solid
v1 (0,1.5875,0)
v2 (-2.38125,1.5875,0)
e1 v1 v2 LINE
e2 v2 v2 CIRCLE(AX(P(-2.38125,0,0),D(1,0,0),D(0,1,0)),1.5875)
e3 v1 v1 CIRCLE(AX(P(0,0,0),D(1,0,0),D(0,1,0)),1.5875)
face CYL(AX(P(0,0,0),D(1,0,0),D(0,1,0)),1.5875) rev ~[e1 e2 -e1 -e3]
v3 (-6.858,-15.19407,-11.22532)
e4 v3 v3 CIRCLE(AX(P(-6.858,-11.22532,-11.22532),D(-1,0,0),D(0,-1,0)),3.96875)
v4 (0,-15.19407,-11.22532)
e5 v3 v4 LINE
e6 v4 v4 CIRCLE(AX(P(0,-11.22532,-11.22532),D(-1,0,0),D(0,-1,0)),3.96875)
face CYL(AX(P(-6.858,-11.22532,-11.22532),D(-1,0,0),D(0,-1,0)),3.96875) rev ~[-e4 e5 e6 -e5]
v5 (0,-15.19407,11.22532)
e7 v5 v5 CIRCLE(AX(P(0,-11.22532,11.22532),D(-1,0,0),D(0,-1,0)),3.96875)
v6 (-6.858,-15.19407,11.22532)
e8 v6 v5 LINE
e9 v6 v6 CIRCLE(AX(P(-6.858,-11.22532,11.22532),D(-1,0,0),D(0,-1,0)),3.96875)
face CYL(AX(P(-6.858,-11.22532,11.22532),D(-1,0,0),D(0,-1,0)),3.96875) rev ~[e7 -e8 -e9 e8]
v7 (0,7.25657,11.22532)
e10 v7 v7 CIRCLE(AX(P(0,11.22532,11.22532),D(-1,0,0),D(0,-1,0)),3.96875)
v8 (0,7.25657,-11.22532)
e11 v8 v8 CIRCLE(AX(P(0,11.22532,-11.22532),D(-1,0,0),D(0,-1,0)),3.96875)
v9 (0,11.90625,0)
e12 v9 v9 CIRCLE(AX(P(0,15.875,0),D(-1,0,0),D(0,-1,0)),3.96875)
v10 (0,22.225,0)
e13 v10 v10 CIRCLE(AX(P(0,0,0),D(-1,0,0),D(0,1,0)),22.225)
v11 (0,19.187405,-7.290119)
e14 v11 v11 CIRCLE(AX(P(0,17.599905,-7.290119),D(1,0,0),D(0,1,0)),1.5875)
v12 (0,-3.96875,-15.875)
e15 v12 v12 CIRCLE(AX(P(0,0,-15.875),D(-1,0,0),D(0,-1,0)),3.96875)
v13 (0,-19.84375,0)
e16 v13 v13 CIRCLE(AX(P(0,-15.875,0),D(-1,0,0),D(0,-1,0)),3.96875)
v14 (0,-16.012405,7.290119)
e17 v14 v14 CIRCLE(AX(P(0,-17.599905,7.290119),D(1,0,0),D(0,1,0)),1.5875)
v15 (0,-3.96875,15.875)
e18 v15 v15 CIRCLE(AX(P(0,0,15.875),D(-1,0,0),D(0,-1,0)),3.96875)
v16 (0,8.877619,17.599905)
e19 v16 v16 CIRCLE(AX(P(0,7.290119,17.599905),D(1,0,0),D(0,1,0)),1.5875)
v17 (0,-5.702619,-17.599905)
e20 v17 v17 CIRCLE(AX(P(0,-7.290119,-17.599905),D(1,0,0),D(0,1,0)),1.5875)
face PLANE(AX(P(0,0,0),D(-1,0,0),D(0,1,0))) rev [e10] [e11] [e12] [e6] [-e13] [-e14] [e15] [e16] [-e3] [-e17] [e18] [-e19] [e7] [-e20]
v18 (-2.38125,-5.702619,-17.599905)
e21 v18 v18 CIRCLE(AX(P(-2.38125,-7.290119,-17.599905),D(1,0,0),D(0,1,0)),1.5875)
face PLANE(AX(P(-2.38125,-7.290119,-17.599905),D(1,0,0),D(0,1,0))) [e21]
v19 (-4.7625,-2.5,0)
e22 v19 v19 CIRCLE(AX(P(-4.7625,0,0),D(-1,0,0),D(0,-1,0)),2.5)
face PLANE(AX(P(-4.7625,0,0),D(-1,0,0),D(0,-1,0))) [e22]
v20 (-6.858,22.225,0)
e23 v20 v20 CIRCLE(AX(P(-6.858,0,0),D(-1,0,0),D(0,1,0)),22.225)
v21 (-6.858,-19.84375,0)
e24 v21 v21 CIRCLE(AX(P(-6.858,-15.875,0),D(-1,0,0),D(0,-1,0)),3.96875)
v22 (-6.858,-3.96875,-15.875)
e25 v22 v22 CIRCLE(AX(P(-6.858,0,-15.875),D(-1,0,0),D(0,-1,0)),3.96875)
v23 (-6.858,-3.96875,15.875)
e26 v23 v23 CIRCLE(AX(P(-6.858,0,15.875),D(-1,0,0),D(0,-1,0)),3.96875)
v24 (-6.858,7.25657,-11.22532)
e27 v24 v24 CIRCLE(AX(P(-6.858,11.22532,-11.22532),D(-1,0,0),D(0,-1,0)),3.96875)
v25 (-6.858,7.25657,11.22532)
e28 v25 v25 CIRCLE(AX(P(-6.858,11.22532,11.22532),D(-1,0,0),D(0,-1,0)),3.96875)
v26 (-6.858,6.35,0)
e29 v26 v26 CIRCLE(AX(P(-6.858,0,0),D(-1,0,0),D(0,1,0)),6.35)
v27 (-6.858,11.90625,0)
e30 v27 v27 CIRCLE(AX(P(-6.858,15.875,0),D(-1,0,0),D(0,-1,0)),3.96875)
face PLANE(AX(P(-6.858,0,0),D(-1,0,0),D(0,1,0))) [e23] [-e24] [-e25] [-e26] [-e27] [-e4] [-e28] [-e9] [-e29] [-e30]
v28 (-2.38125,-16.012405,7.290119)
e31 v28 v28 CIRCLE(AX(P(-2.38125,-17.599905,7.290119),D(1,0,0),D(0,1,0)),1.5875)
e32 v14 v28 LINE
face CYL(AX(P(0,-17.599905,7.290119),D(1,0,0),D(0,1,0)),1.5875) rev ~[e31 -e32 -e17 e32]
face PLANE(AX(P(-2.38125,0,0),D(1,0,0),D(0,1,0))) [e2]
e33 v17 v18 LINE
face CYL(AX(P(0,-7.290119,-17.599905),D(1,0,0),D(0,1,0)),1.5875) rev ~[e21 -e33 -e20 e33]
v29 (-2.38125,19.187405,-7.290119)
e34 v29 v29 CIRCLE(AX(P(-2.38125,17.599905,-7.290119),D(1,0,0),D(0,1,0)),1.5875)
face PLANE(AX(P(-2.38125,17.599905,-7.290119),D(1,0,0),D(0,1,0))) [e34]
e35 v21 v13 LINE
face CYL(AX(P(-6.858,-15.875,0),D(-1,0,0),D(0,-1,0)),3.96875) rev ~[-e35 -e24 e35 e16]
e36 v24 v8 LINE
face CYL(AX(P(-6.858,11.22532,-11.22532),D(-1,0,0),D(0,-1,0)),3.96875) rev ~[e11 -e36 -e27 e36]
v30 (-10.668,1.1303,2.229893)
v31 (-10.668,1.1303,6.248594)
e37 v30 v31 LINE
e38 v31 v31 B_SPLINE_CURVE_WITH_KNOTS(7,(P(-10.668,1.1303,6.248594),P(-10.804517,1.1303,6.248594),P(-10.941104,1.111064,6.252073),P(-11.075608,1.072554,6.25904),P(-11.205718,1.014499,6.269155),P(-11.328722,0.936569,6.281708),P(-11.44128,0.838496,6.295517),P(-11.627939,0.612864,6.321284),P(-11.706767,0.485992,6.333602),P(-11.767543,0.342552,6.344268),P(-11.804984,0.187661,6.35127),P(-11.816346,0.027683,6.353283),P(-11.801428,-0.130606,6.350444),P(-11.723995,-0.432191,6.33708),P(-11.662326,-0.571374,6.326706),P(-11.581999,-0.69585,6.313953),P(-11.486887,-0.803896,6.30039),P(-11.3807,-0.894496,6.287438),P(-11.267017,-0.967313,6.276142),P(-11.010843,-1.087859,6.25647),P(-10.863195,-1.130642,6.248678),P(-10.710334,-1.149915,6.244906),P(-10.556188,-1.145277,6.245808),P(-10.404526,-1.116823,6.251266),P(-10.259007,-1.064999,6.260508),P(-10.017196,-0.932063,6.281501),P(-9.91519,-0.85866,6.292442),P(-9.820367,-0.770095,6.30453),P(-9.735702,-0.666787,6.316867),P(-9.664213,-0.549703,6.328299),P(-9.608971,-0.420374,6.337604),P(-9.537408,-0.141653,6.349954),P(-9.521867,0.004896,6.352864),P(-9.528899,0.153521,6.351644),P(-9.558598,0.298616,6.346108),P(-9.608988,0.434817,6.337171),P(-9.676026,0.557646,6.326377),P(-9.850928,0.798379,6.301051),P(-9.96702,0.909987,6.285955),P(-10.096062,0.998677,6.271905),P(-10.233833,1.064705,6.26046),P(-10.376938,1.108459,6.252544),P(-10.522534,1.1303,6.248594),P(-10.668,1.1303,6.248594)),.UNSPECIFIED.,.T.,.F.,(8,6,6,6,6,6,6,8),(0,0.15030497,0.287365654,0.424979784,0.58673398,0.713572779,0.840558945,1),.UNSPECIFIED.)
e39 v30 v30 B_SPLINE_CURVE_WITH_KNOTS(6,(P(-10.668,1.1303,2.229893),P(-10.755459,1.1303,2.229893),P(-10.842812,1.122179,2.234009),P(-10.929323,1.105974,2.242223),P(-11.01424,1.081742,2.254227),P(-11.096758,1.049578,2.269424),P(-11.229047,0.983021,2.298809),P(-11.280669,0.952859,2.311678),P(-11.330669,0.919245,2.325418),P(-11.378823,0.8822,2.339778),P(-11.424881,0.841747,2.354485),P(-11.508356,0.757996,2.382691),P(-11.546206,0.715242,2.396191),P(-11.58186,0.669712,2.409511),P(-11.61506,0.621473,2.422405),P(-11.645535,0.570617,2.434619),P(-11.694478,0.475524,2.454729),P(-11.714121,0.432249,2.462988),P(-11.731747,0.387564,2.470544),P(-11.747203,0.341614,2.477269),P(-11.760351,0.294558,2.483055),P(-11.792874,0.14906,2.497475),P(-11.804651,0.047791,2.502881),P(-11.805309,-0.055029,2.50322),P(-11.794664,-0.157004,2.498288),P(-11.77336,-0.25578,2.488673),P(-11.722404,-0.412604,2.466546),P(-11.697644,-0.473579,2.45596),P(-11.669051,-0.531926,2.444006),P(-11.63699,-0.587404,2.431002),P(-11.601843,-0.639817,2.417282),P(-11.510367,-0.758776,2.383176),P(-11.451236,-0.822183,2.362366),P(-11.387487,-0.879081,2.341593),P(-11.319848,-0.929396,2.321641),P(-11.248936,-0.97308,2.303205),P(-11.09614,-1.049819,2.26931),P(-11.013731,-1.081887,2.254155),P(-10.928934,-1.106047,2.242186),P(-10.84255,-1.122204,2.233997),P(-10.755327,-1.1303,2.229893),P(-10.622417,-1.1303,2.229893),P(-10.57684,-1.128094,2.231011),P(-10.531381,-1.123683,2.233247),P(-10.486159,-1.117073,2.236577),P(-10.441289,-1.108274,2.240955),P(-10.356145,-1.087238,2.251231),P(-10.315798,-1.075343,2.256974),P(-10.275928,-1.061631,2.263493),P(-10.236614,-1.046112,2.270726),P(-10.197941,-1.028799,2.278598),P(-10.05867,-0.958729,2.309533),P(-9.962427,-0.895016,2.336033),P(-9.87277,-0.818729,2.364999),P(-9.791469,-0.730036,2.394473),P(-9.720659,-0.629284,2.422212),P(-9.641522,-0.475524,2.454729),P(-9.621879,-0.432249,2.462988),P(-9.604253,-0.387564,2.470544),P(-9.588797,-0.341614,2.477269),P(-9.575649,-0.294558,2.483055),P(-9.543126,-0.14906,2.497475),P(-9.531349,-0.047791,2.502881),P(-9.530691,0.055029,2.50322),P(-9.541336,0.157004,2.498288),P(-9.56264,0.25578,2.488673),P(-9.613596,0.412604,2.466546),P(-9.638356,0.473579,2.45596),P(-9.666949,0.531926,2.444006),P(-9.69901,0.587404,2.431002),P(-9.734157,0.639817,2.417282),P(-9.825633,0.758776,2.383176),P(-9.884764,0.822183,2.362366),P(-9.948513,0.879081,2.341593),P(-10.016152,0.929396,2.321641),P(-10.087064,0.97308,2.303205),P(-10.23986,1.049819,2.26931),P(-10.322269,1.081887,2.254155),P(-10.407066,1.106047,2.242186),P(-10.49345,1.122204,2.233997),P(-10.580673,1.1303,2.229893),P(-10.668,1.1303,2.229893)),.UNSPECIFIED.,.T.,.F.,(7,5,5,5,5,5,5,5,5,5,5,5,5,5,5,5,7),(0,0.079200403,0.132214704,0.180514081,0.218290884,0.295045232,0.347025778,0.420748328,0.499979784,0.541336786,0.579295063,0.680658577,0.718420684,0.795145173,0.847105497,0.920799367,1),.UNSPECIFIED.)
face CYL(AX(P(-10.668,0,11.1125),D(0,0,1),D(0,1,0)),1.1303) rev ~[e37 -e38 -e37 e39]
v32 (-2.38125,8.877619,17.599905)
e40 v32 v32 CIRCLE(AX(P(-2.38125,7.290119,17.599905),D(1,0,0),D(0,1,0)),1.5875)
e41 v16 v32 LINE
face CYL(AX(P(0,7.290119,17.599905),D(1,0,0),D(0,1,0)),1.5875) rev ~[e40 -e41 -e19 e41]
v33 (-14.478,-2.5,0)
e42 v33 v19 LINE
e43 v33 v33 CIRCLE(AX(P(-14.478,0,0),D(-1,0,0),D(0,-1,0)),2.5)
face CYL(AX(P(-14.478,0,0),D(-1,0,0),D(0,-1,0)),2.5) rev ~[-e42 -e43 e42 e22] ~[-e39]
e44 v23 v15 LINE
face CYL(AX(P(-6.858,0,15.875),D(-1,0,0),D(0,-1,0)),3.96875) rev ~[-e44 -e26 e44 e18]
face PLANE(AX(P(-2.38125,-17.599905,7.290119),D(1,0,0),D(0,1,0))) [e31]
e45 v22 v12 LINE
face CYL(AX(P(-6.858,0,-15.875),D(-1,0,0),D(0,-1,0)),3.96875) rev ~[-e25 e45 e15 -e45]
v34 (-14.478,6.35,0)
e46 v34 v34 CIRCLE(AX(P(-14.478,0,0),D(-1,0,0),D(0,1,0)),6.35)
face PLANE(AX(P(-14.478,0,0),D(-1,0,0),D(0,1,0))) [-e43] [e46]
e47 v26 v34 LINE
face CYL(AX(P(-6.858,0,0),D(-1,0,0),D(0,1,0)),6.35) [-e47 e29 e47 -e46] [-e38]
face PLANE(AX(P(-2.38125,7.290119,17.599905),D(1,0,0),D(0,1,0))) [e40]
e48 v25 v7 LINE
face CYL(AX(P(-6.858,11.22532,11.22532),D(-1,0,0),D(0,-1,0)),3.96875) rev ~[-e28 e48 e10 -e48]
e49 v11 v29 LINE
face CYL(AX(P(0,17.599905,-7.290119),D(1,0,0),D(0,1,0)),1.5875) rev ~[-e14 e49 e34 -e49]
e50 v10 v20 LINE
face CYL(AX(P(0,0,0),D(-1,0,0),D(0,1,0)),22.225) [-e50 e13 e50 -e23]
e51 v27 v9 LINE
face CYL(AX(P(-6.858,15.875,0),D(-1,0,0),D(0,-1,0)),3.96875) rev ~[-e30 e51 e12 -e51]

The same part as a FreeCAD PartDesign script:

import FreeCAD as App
import Part
import Sketcher
Q = App.Units.Quantity


def add_polygon(sketch, points):
    """Adds a closed chain of lines whose ends are joined by coincident constraints."""
    first, n = sketch.GeometryCount, len(points)
    for a, b in zip(points, points[1:] + points[:1]):
        sketch.addGeometry(Part.LineSegment(App.Vector(*a, 0), App.Vector(*b, 0)), False)
    for i in range(n):
        sketch.addConstraint(Sketcher.Constraint("Coincident", first + i, 2, first + (i + 1) % n, 1))

doc = App.newDocument("Part")
body = doc.addObject("PartDesign::Body", "Body")

# Sketch on XY plane
sketch1 = body.newObject("Sketcher::SketchObject", "Sketch")
sketch1.AttachmentSupport = (doc.getObject("XY_Plane"), [""])
sketch1.MapMode = "FlatFace"
add_polygon(sketch1, [(0, 0), (0, 22), (-7, 22), (-7, 6), (-14, 6), (-14, 0)])  # lines 0-5
sketch1.addConstraint(Sketcher.Constraint("Vertical", 0))
sketch1.addConstraint(Sketcher.Constraint("Horizontal", 1))
sketch1.addConstraint(Sketcher.Constraint("Vertical", 2))
sketch1.addConstraint(Sketcher.Constraint("Horizontal", 3))
sketch1.addConstraint(Sketcher.Constraint("Vertical", 4))
sketch1.addConstraint(Sketcher.Constraint("Horizontal", 5))
sketch1.addConstraint(Sketcher.Constraint("Coincident", 5, 2, -1, 1))
sketch1.addConstraint(Sketcher.Constraint("DistanceX", 3, 2, 3, 1, Q("0.3 in")))
sketch1.addConstraint(Sketcher.Constraint("DistanceX", 1, 2, 1, 1, Q("0.27 in")))
sketch1.addConstraint(Sketcher.Constraint("DistanceY", 4, 2, 4, 1, Q("0.25 in")))
sketch1.addConstraint(Sketcher.Constraint("DistanceY", 0, 1, 0, 2, Q("0.875 in")))
revolution = body.newObject("PartDesign::Revolution", "Revolution")
revolution.Profile = sketch1
revolution.ReferenceAxis = (sketch1, ["H_Axis"])
revolution.Angle = 360

# Sketch on YZ plane
sketch2 = body.newObject("Sketcher::SketchObject", "Sketch001")
sketch2.AttachmentSupport = (doc.getObject("YZ_Plane"), [""])
sketch2.MapMode = "FlatFace"
sketch2.AttachmentOffset = App.Placement(App.Vector(0, 0, -0.27 * 25.4), App.Rotation())
sketch2.addGeometry(Part.Circle(App.Vector(15.9, 0, 0), App.Vector(0, 0, 1), 4), False)
sketch2.addGeometry(Part.Circle(App.Vector(11.2, 11.2, 0), App.Vector(0, 0, 1), 4), False)
sketch2.addGeometry(Part.Circle(App.Vector(0, 15.9, 0), App.Vector(0, 0, 1), 4), False)
sketch2.addGeometry(Part.Circle(App.Vector(-11.2, 11.2, 0), App.Vector(0, 0, 1), 4), False)
sketch2.addGeometry(Part.Circle(App.Vector(-15.9, 0, 0), App.Vector(0, 0, 1), 4), False)
sketch2.addGeometry(Part.Circle(App.Vector(-11.2, -11.2, 0), App.Vector(0, 0, 1), 4), False)
sketch2.addGeometry(Part.Circle(App.Vector(0, -15.9, 0), App.Vector(0, 0, 1), 4), False)
sketch2.addGeometry(Part.Circle(App.Vector(11.2, -11.2, 0), App.Vector(0, 0, 1), 4), False)
sketch2.addConstraint(Sketcher.Constraint("Equal", 0, 1))
sketch2.addConstraint(Sketcher.Constraint("Equal", 1, 2))
sketch2.addConstraint(Sketcher.Constraint("Equal", 2, 3))
sketch2.addConstraint(Sketcher.Constraint("Equal", 3, 4))
sketch2.addConstraint(Sketcher.Constraint("Equal", 4, 5))
sketch2.addConstraint(Sketcher.Constraint("Equal", 5, 6))
sketch2.addConstraint(Sketcher.Constraint("Equal", 6, 7))
sketch2.addConstraint(Sketcher.Constraint("Symmetric", 0, 3, 4, 3, -1, 1))
sketch2.addConstraint(Sketcher.Constraint("Symmetric", 1, 3, 5, 3, -1, 1))
sketch2.addConstraint(Sketcher.Constraint("Symmetric", 2, 3, 6, 3, -1, 1))
sketch2.addConstraint(Sketcher.Constraint("Symmetric", 3, 3, 7, 3, -1, 1))
sketch2.addConstraint(Sketcher.Constraint("Symmetric", 1, 3, 3, 3, -2))
sketch2.addConstraint(Sketcher.Constraint("PointOnObject", 0, 3, -1))
sketch2.addConstraint(Sketcher.Constraint("PointOnObject", 2, 3, -2))
sketch2.addConstraint(Sketcher.Constraint("Diameter", 0, Q("0.3125 in")))
sketch2.addConstraint(Sketcher.Constraint("DistanceX", 4, 3, 0, 3, Q("1.25 in")))
sketch2.addConstraint(Sketcher.Constraint("DistanceY", -1, 1, 2, 3, Q("0.625 in")))
sketch2.addConstraint(Sketcher.Constraint("DistanceX", -1, 1, 1, 3, 11.22532))
sketch2.addConstraint(Sketcher.Constraint("DistanceY", -1, 1, 1, 3, 11.22532))
pocket1 = body.newObject("PartDesign::Pocket", "Pocket")
pocket1.Profile = sketch2
pocket1.Type = "ThroughAll"
pocket1.Reversed = True

# Sketch on YZ plane
sketch3 = body.newObject("Sketcher::SketchObject", "Sketch002")
sketch3.AttachmentSupport = (doc.getObject("YZ_Plane"), [""])
sketch3.MapMode = "FlatFace"
sketch3.AttachmentOffset = App.Placement(App.Vector(0, 0, -0.57 * 25.4), App.Rotation())
sketch3.addGeometry(Part.Circle(App.Vector(0, 0, 0), App.Vector(0, 0, 1), 2.5), False)
sketch3.addConstraint(Sketcher.Constraint("Coincident", 0, 3, -1, 1))
sketch3.addConstraint(Sketcher.Constraint("Diameter", 0, 5.0))
pocket2 = body.newObject("PartDesign::Pocket", "Pocket001")
pocket2.Profile = sketch3
pocket2.Length = Q("0.3825 in")
pocket2.Reversed = True

# Sketch on YZ plane
sketch4 = body.newObject("Sketcher::SketchObject", "Sketch003")
sketch4.AttachmentSupport = (doc.getObject("YZ_Plane"), [""])
sketch4.MapMode = "FlatFace"
sketch4.addGeometry(Part.Circle(App.Vector(0, 0, 0), App.Vector(0, 0, 1), 1.6), False)
sketch4.addGeometry(Part.Circle(App.Vector(7.3, 17.6, 0), App.Vector(0, 0, 1), 1.6), False)
sketch4.addGeometry(Part.Circle(App.Vector(17.6, -7.3, 0), App.Vector(0, 0, 1), 1.6), False)
sketch4.addGeometry(Part.Circle(App.Vector(-7.3, -17.6, 0), App.Vector(0, 0, 1), 1.6), False)
sketch4.addGeometry(Part.Circle(App.Vector(-17.6, 7.3, 0), App.Vector(0, 0, 1), 1.6), False)
sketch4.addConstraint(Sketcher.Constraint("Coincident", 0, 3, -1, 1))
sketch4.addConstraint(Sketcher.Constraint("Equal", 0, 1))
sketch4.addConstraint(Sketcher.Constraint("Equal", 1, 2))
sketch4.addConstraint(Sketcher.Constraint("Equal", 2, 3))
sketch4.addConstraint(Sketcher.Constraint("Equal", 3, 4))
sketch4.addConstraint(Sketcher.Constraint("Symmetric", 1, 3, 3, 3, -1, 1))
sketch4.addConstraint(Sketcher.Constraint("Symmetric", 2, 3, 4, 3, -1, 1))
sketch4.addConstraint(Sketcher.Constraint("Diameter", 0, Q("0.125 in")))
sketch4.addConstraint(Sketcher.Constraint("DistanceX", -1, 1, 1, 3, 7.290119))
sketch4.addConstraint(Sketcher.Constraint("DistanceY", 2, 3, -1, 1, 7.290119))
sketch4.addConstraint(Sketcher.Constraint("DistanceY", 3, 3, 1, 3, 35.19981))
sketch4.addConstraint(Sketcher.Constraint("DistanceX", 4, 3, 2, 3, 35.19981))
pocket3 = body.newObject("PartDesign::Pocket", "Pocket002")
pocket3.Profile = sketch4
pocket3.Length = Q("0.09375 in")

# Sketch on YZ plane
sketch5 = body.newObject("Sketcher::SketchObject", "Sketch004")
sketch5.AttachmentSupport = (doc.getObject("YZ_Plane"), [""])
sketch5.MapMode = "FlatFace"
sketch5.AttachmentOffset = App.Placement(App.Vector(0, 0, -0.42 * 25.4), App.Rotation())
add_polygon(sketch5, [(0, 22.2), (0, 0), (1.1, 0), (1.1, 22.2)])  # lines 0-3
sketch5.addConstraint(Sketcher.Constraint("Vertical", 0))
sketch5.addConstraint(Sketcher.Constraint("Horizontal", 1))
sketch5.addConstraint(Sketcher.Constraint("Vertical", 2))
sketch5.addConstraint(Sketcher.Constraint("Horizontal", 3))
sketch5.addConstraint(Sketcher.Constraint("Coincident", 0, 2, -1, 1))
sketch5.addConstraint(Sketcher.Constraint("DistanceY", 0, 2, 0, 1, Q("0.875 in")))
sketch5.addConstraint(Sketcher.Constraint("DistanceX", 1, 1, 1, 2, Q("0.0445 in")))
groove = body.newObject("PartDesign::Groove", "Groove")
groove.Profile = sketch5
groove.ReferenceAxis = (sketch5, ["V_Axis"])
groove.Angle = 360

doc.recompute()
